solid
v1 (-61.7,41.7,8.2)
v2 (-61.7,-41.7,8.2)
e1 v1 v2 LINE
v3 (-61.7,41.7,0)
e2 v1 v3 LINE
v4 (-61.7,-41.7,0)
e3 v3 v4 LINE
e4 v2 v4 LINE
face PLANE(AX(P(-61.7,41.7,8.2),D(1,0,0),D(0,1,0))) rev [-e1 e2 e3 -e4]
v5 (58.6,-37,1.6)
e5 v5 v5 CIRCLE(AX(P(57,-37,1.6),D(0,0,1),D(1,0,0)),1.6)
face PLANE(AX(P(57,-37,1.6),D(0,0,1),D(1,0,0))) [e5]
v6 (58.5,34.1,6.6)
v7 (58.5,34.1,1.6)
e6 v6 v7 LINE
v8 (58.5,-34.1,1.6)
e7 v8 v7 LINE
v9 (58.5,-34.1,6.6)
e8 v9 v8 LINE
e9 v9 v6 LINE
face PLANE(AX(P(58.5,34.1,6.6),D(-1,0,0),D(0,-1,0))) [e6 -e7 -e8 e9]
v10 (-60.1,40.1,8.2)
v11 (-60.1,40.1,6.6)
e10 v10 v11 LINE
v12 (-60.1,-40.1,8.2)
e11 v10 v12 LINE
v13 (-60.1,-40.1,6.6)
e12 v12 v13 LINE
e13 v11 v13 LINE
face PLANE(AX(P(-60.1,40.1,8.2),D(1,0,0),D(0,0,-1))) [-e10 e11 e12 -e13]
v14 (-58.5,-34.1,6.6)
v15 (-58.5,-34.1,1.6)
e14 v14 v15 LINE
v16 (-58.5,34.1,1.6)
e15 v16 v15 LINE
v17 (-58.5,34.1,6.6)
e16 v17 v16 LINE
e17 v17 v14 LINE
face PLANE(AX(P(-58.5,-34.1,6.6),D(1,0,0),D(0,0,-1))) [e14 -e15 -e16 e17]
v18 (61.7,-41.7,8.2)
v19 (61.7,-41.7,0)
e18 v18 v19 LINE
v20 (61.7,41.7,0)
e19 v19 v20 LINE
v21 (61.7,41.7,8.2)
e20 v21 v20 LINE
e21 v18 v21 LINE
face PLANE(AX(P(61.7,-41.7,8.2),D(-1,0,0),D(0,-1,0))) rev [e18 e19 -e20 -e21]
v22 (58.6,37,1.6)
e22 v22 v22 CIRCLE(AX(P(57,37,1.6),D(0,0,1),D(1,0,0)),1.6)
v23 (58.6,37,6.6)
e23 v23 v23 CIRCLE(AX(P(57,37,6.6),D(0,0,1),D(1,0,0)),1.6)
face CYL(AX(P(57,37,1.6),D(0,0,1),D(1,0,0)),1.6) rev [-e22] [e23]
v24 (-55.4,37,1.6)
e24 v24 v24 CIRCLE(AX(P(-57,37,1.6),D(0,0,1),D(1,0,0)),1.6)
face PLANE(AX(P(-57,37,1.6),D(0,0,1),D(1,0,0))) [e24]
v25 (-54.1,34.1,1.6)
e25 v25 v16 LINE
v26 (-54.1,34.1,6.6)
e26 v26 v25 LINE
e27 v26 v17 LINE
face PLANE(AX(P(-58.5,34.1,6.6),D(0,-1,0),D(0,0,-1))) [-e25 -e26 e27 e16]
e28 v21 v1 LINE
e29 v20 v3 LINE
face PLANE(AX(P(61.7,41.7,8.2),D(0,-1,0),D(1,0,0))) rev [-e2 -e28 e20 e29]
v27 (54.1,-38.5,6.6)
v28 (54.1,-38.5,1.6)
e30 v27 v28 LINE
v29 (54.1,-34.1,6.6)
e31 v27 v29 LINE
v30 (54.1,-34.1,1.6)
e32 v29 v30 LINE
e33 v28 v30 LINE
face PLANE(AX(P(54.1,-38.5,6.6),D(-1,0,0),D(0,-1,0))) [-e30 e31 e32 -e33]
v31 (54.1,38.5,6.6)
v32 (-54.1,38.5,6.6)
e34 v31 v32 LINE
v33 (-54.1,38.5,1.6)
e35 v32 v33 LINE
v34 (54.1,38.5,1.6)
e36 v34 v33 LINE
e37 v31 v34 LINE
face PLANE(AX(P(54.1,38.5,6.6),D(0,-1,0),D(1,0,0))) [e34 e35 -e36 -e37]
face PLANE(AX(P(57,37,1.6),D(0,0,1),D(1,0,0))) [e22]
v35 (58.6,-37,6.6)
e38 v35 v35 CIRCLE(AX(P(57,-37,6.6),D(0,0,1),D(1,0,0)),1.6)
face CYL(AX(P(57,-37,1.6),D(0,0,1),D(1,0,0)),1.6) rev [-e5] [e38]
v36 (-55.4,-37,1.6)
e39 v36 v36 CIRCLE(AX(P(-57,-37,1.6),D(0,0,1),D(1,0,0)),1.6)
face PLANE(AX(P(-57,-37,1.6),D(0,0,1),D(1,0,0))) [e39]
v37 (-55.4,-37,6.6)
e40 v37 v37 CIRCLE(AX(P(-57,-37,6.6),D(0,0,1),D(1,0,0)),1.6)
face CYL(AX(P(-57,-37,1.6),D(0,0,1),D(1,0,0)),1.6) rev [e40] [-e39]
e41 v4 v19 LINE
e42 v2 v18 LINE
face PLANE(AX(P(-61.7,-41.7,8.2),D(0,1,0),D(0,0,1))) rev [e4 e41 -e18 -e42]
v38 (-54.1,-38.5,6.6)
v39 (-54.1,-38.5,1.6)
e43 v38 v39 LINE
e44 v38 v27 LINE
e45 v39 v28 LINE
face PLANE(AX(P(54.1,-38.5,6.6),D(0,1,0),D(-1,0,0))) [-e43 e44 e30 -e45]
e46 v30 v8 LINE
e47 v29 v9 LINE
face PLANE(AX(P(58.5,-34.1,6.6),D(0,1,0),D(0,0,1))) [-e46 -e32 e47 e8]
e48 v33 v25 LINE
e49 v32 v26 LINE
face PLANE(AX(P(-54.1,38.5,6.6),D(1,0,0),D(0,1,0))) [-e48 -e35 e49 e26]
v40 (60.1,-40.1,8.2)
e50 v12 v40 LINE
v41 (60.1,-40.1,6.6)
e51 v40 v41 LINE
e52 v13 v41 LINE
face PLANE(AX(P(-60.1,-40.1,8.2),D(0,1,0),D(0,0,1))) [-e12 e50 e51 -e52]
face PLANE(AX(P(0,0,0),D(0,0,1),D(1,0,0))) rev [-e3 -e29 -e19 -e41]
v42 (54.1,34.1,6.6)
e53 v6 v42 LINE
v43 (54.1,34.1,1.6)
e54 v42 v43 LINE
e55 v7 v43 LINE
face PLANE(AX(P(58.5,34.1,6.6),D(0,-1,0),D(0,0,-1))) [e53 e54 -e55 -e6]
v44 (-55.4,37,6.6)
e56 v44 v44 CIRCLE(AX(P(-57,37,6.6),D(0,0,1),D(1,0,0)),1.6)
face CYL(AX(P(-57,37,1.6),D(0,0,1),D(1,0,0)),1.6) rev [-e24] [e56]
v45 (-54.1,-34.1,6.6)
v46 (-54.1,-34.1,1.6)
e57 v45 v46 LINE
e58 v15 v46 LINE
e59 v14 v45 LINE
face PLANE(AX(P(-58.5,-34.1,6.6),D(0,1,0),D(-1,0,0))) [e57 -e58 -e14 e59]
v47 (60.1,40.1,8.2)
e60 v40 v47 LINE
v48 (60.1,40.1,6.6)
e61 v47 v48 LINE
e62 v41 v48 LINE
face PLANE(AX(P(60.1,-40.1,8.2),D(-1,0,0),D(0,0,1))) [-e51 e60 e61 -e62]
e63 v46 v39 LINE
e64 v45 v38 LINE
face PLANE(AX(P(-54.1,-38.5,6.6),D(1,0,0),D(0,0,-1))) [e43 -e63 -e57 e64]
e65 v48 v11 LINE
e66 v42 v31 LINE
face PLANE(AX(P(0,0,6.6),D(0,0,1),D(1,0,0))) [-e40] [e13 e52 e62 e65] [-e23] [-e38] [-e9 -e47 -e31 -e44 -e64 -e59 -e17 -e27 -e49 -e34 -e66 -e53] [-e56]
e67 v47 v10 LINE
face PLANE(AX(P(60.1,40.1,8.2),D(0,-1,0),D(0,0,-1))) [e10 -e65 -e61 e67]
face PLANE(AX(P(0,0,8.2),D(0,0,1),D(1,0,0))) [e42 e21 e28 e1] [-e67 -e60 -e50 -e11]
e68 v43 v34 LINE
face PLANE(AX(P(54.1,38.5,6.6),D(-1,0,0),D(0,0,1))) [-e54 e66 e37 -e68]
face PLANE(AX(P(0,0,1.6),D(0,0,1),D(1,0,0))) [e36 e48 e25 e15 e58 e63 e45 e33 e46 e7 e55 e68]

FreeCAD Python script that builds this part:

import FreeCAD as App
import Part
import Sketcher
from FreeCAD import Vector


def add_polygon(sketch, points):
    """Adds a closed chain of lines whose ends are joined by coincident constraints."""
    first, n = sketch.GeometryCount, len(points)
    for a, b in zip(points, points[1:] + points[:1]):
        sketch.addGeometry(Part.LineSegment(App.Vector(*a, 0), App.Vector(*b, 0)), False)
    for i in range(n):
        sketch.addConstraint(Sketcher.Constraint("Coincident", first + i, 2, first + (i + 1) % n, 1))

doc = App.newDocument("Part")
params = doc.addObject("Spreadsheet::Sheet", "Params")
for row, (alias, value) in enumerate([
    ("sketch1_width", "120.2 mm"),
    ("sketch1_height", "80.2 mm"),
    ("pad1_length", "1.6 mm"),
    ("sketch2_width", "123.4 mm"),
    ("sketch2_width2", "120.2 mm"),
    ("sketch2_height", "83.4 mm"),
    ("sketch2_height2", "80.2 mm"),
    ("pad2_length", "8.2 mm"),
    ("sketch3_width", "120.2 mm"),
    ("sketch3_width2", "4.4 mm"),
    ("sketch3_width3", "108.2 mm"),
    ("sketch3_height", "80.2 mm"),
    ("sketch3_height2", "68.2 mm"),
    ("pad3_length", "5 mm"),
    ("sketch4_diameter", "3.2 mm"),
    ("pocket1_length", "5 mm"),
], start=1):
    params.set(f"A{row}", alias)
    params.set(f"B{row}", "=" + value)
    params.setAlias(f"B{row}", alias)

body = doc.addObject("PartDesign::Body", "Body")

# Sketch on XY plane
sketch1 = doc.addObject("Sketcher::SketchObject", "Sketch")
body.addObject(sketch1)
sketch1.AttachmentSupport = (doc.XY_Plane, [""])
sketch1.MapMode = "FlatFace"
add_polygon(sketch1, [(-60, 40), (-60, -40), (60, -40), (60, 40)])  # lines 0-3
sketch1.addConstraint([
    Sketcher.Constraint("Vertical", 0),
    Sketcher.Constraint("Horizontal", 1),
    Sketcher.Constraint("Vertical", 2),
    Sketcher.Constraint("Horizontal", 3),
    Sketcher.Constraint("Symmetric", 0, 2, 2, 2, -1, 1),
    Sketcher.Constraint("DistanceX", 1, 1, 1, 2, 120.2),
    Sketcher.Constraint("DistanceY", 0, 2, 0, 1, 80.2),
])
sketch1.setExpression("Constraints[9]", "Params.sketch1_width")
sketch1.setExpression("Constraints[10]", "Params.sketch1_height")
pad1 = doc.addObject("PartDesign::Pad", "Pad")
body.addObject(pad1)
pad1.Profile = sketch1
pad1.setExpression("Length", "Params.pad1_length")

# Sketch on XY plane
sketch2 = doc.addObject("Sketcher::SketchObject", "Sketch001")
body.addObject(sketch2)
sketch2.AttachmentSupport = (doc.XY_Plane, [""])
sketch2.MapMode = "FlatFace"
add_polygon(sketch2, [(-62, 42), (-62, -42), (62, -42), (62, 42)])  # lines 0-3
add_polygon(sketch2, [(60, -40), (-60, -40), (-60, 40), (60, 40)])  # lines 4-7
sketch2.addConstraint([
    Sketcher.Constraint("Vertical", 0),
    Sketcher.Constraint("Horizontal", 1),
    Sketcher.Constraint("Vertical", 2),
    Sketcher.Constraint("Horizontal", 3),
    Sketcher.Constraint("Horizontal", 4),
    Sketcher.Constraint("Vertical", 5),
    Sketcher.Constraint("Horizontal", 6),
    Sketcher.Constraint("Vertical", 7),
    Sketcher.Constraint("Symmetric", 0, 2, 2, 2, -1, 1),
    Sketcher.Constraint("Symmetric", 4, 2, 6, 2, -1, 1),
    Sketcher.Constraint("DistanceX", 1, 1, 1, 2, 123.4),
    Sketcher.Constraint("DistanceX", 4, 2, 4, 1, 120.2),
    Sketcher.Constraint("DistanceY", 0, 2, 0, 1, 83.4),
    Sketcher.Constraint("DistanceY", 5, 1, 5, 2, 80.2),
])
sketch2.setExpression("Constraints[18]", "Params.sketch2_width")
sketch2.setExpression("Constraints[19]", "Params.sketch2_width2")
sketch2.setExpression("Constraints[20]", "Params.sketch2_height")
sketch2.setExpression("Constraints[21]", "Params.sketch2_height2")
pad2 = doc.addObject("PartDesign::Pad", "Pad001")
body.addObject(pad2)
pad2.Profile = sketch2
pad2.setExpression("Length", "Params.pad2_length")

# Sketch on XY plane
sketch3 = doc.addObject("Sketcher::SketchObject", "Sketch002")
body.addObject(sketch3)
sketch3.AttachmentSupport = (doc.XY_Plane, [""])
sketch3.MapMode = "FlatFace"
sketch3.AttachmentOffset = App.Placement(Vector(0, 0, 1.6), App.Rotation())
add_polygon(sketch3, [(-60.1, 40.1), (-60.1, -40.1), (60.1, -40.1), (60.1, 40.1)])  # lines 0-3
add_polygon(sketch3, [(-58.5, -34.1), (-58.5, 34.1), (-54.1, 34.1), (-54.1, 38.5), (54.1, 38.5), (54.1, 34.1), (58.5, 34.1), (58.5, -34.1), (54.1, -34.1), (54.1, -38.5), (-54.1, -38.5), (-54.1, -34.1)])  # lines 4-15
sketch3.addConstraint([
    Sketcher.Constraint("Vertical", 0),
    Sketcher.Constraint("Horizontal", 1),
    Sketcher.Constraint("Vertical", 2),
    Sketcher.Constraint("Horizontal", 3),
    Sketcher.Constraint("Vertical", 4),
    Sketcher.Constraint("Horizontal", 5),
    Sketcher.Constraint("Vertical", 6),
    Sketcher.Constraint("Horizontal", 7),
    Sketcher.Constraint("Vertical", 8),
    Sketcher.Constraint("Horizontal", 9),
    Sketcher.Constraint("Vertical", 10),
    Sketcher.Constraint("Horizontal", 11),
    Sketcher.Constraint("Vertical", 12),
    Sketcher.Constraint("Horizontal", 13),
    Sketcher.Constraint("Vertical", 14),
    Sketcher.Constraint("Horizontal", 15),
    Sketcher.Constraint("Symmetric", 0, 2, 2, 2, -1, 1),
    Sketcher.Constraint("Symmetric", 4, 2, 10, 2, -1, 1),
    Sketcher.Constraint("Symmetric", 6, 2, 12, 2, -1, 1),
    Sketcher.Constraint("Symmetric", 8, 2, 14, 2, -1, 1),
    Sketcher.Constraint("Symmetric", 5, 2, 8, 2, -2),
    Sketcher.Constraint("Equal", 15, 6),
    Sketcher.Constraint("DistanceX", 1, 1, 1, 2, 120.2),
    Sketcher.Constraint("DistanceX", 5, 1, 5, 2, 4.4),
    Sketcher.Constraint("DistanceX", 7, 1, 7, 2, 108.2),
    Sketcher.Constraint("DistanceY", 0, 2, 0, 1, 80.2),
    Sketcher.Constraint("DistanceY", 4, 1, 4, 2, 68.2),
])
sketch3.setExpression("Constraints[38]", "Params.sketch3_width")
sketch3.setExpression("Constraints[39]", "Params.sketch3_width2")
sketch3.setExpression("Constraints[40]", "Params.sketch3_width3")
sketch3.setExpression("Constraints[41]", "Params.sketch3_height")
sketch3.setExpression("Constraints[42]", "Params.sketch3_height2")
pad3 = doc.addObject("PartDesign::Pad", "Pad002")
body.addObject(pad3)
pad3.Profile = sketch3
pad3.setExpression("Length", "Params.pad3_length")

# Sketch on XY plane
sketch4 = doc.addObject("Sketcher::SketchObject", "Sketch003")
body.addObject(sketch4)
sketch4.AttachmentSupport = (doc.XY_Plane, [""])
sketch4.MapMode = "FlatFace"
sketch4.AttachmentOffset = App.Placement(Vector(0, 0, 6.6), App.Rotation())
sketch4.addGeometry([
    Part.Circle(Vector(-57, 37, 0), Vector(0, 0, 1), 1.6),
    Part.Circle(Vector(57, 37, 0), Vector(0, 0, 1), 1.6),
    Part.Circle(Vector(57, -37, 0), Vector(0, 0, 1), 1.6),
    Part.Circle(Vector(-57, -37, 0), Vector(0, 0, 1), 1.6),
], False)
sketch4.addConstraint([
    Sketcher.Constraint("Equal", 0, 1),
    Sketcher.Constraint("Equal", 1, 2),
    Sketcher.Constraint("Equal", 2, 3),
    Sketcher.Constraint("Symmetric", 0, 3, 2, 3, -1, 1),
    Sketcher.Constraint("Symmetric", 1, 3, 3, 3, -1, 1),
    Sketcher.Constraint("Symmetric", 0, 3, 1, 3, -2),
    Sketcher.Constraint("Diameter", 0, 3.2),
    Sketcher.Constraint("DistanceX", 0, 3, -1, 1, 57.0),
    Sketcher.Constraint("DistanceY", -1, 1, 0, 3, 37.0),
])
sketch4.setExpression("Constraints[6]", "Params.sketch4_diameter")
pocket1 = doc.addObject("PartDesign::Pocket", "Pocket")
body.addObject(pocket1)
pocket1.Profile = sketch4
pocket1.setExpression("Length", "Params.pocket1_length")

doc.recompute()
